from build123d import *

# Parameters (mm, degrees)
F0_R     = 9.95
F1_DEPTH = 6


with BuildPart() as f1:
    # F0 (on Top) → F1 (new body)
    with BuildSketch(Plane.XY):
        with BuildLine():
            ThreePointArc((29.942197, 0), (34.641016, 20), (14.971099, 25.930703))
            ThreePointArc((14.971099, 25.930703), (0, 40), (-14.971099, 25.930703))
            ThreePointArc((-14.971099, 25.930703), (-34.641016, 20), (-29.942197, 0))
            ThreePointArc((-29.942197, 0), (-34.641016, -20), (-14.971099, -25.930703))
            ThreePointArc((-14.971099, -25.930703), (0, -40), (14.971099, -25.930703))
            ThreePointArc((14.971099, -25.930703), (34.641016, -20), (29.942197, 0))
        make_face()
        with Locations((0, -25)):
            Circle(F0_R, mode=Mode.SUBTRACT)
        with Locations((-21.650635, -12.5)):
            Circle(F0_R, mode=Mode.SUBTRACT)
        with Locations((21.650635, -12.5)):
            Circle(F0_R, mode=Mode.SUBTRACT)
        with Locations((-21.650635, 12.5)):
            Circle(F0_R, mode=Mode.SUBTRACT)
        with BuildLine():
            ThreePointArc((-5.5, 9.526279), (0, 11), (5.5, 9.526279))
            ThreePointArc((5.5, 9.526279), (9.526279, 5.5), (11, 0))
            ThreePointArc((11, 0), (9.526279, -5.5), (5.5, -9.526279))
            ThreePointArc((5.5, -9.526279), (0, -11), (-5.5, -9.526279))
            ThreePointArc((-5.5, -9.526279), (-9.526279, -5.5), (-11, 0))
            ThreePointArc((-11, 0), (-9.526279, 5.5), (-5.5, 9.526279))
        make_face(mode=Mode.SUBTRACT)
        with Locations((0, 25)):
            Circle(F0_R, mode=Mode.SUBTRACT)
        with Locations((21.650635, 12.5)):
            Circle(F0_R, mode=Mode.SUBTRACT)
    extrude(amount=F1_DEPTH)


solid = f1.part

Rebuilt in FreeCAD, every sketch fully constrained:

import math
import FreeCAD as App
import Part
import Sketcher

V = App.Vector

doc = App.newDocument("Part")
params = doc.addObject("Spreadsheet::Sheet", "Params")
for row, (alias, value) in enumerate([
    ("sketch1_radius", "15 mm"),
    ("sketch1_radius2", "11.000001 mm"),
    ("sketch1_diameter", "19.9 mm"),
    ("pad1_length", "6 mm"),
], start=1):
    params.set(f"A{row}", alias)
    params.set(f"B{row}", "=" + value)
    params.setAlias(f"B{row}", alias)

body = doc.addObject("PartDesign::Body", "Body")

sketch1 = doc.addObject("Sketcher::SketchObject", "Sketch")
body.addObject(sketch1)
sketch1.AttachmentSupport = (doc.XY_Plane, [""])
sketch1.MapMode = "FlatFace"
sketch1.addGeometry([
    Part.ArcOfCircle(Part.Circle(V(22, 12, 0), V(0, 0, 1), 15), math.radians(-56), math.radians(116)),
    Part.ArcOfCircle(Part.Circle(V(0, 25, 0), V(0, 0, 1), 15), math.radians(4), math.radians(176)),
    Part.ArcOfCircle(Part.Circle(V(-22, 12, 0), V(0, 0, 1), 15), math.radians(64), math.radians(236)),
    Part.ArcOfCircle(Part.Circle(V(-22, -12, 0), V(0, 0, 1), 15), math.radians(124), math.radians(296)),
    Part.ArcOfCircle(Part.Circle(V(0, -25, 0), V(0, 0, 1), 15), math.radians(-176), math.radians(-4)),
    Part.ArcOfCircle(Part.Circle(V(22, -12, 0), V(0, 0, 1), 15), math.radians(-116), math.radians(56)),
    Part.Circle(V(-22, -12, 0), V(0, 0, 1), 10),
    Part.Circle(V(0, -25, 0), V(0, 0, 1), 10),
    Part.Circle(V(22, -12, 0), V(0, 0, 1), 10),
    Part.Circle(V(-22, 12, 0), V(0, 0, 1), 10),
    Part.ArcOfCircle(Part.Circle(V(0, 0, 0), V(0, 0, 1), 11), math.radians(120), math.radians(180)),
    Part.ArcOfCircle(Part.Circle(V(0, 0, 0), V(0, 0, 1), 11), math.radians(60), math.radians(120)),
    Part.ArcOfCircle(Part.Circle(V(0, 0, 0), V(0, 0, 1), 11), math.radians(0), math.radians(60)),
    Part.ArcOfCircle(Part.Circle(V(0, 0, 0), V(0, 0, 1), 11), math.radians(-60), math.radians(0)),
    Part.ArcOfCircle(Part.Circle(V(0, 0, 0), V(0, 0, 1), 11), math.radians(-120), math.radians(-60)),
    Part.ArcOfCircle(Part.Circle(V(0, 0, 0), V(0, 0, 1), 11), math.radians(-180), math.radians(-120)),
    Part.Circle(V(22, 12, 0), V(0, 0, 1), 10),
    Part.Circle(V(0, 25, 0), V(0, 0, 1), 10),
], False)
sketch1.addConstraint([
    Sketcher.Constraint("Coincident", 0, 2, 1, 1),
    Sketcher.Constraint("Coincident", 1, 2, 2, 1),
    Sketcher.Constraint("Coincident", 2, 2, 3, 1),
    Sketcher.Constraint("Coincident", 3, 2, 4, 1),
    Sketcher.Constraint("Coincident", 4, 2, 5, 1),
    Sketcher.Constraint("Coincident", 5, 2, 0, 1),
    Sketcher.Constraint("Tangent", 10, 1, 11, 2),
    Sketcher.Constraint("Tangent", 11, 1, 12, 2),
    Sketcher.Constraint("Tangent", 12, 1, 13, 2),
    Sketcher.Constraint("Tangent", 13, 1, 14, 2),
    Sketcher.Constraint("Tangent", 14, 1, 15, 2),
    Sketcher.Constraint("Tangent", 15, 1, 10, 2),
    Sketcher.Constraint("Coincident", 10, 3, -1, 1),
    Sketcher.Constraint("Coincident", 12, 3, -1, 1),
    Sketcher.Constraint("Coincident", 6, 3, 3, 3),
    Sketcher.Constraint("Coincident", 7, 3, 4, 3),
    Sketcher.Constraint("Coincident", 8, 3, 5, 3),
    Sketcher.Constraint("Coincident", 9, 3, 2, 3),
    Sketcher.Constraint("Coincident", 16, 3, 0, 3),
    Sketcher.Constraint("Coincident", 17, 3, 1, 3),
    Sketcher.Constraint("Equal", 0, 1),
    Sketcher.Constraint("Equal", 1, 2),
    Sketcher.Constraint("Equal", 2, 3),
    Sketcher.Constraint("Equal", 3, 4),
    Sketcher.Constraint("Equal", 4, 5),
    Sketcher.Constraint("Equal", 6, 7),
    Sketcher.Constraint("Equal", 7, 8),
    Sketcher.Constraint("Equal", 8, 9),
    Sketcher.Constraint("Equal", 12, 13),
    Sketcher.Constraint("Equal", 9, 16),
    Sketcher.Constraint("Equal", 16, 17),
    Sketcher.Constraint("Symmetric", 0, 3, 3, 3, -1, 1),
    Sketcher.Constraint("Symmetric", 1, 3, 4, 3, -1, 1),
    Sketcher.Constraint("Symmetric", 2, 3, 5, 3, -1, 1),
    Sketcher.Constraint("Symmetric", 0, 3, 2, 3, -2),
    Sketcher.Constraint("PointOnObject", 1, 3, -2),
    Sketcher.Constraint("PointOnObject", 12, 1, -1),
    Sketcher.Constraint("PointOnObject", 15, 1, -1),
    Sketcher.Constraint("Horizontal", 10, 1, 11, 1),
    Sketcher.Constraint("Horizontal", 13, 1, 14, 1),
    Sketcher.Constraint("Vertical", 11, 1, 13, 1),
    Sketcher.Constraint("Radius", 0, 15.0),
    Sketcher.Constraint("Radius", 10, 11.000001),
    Sketcher.Constraint("Diameter", 6, 19.9),
    Sketcher.Constraint("DistanceY", -1, 1, 1, 3, 25.0),
    Sketcher.Constraint("DistanceY", 3, 3, 2, 3, 25.0),
    Sketcher.Constraint("DistanceX", 10, 1, 11, 1, 11.0),
    Sketcher.Constraint("DistanceX", 1, 2, -1, 1, 14.971099),
])
sketch1.setExpression("Constraints[41]", "Params.sketch1_radius")
sketch1.setExpression("Constraints[42]", "Params.sketch1_radius2")
sketch1.setExpression("Constraints[43]", "Params.sketch1_diameter")
pad1 = doc.addObject("PartDesign::Pad", "Pad")
body.addObject(pad1)
pad1.Profile = sketch1
pad1.setExpression("Length", "Params.pad1_length")

doc.recompute()
